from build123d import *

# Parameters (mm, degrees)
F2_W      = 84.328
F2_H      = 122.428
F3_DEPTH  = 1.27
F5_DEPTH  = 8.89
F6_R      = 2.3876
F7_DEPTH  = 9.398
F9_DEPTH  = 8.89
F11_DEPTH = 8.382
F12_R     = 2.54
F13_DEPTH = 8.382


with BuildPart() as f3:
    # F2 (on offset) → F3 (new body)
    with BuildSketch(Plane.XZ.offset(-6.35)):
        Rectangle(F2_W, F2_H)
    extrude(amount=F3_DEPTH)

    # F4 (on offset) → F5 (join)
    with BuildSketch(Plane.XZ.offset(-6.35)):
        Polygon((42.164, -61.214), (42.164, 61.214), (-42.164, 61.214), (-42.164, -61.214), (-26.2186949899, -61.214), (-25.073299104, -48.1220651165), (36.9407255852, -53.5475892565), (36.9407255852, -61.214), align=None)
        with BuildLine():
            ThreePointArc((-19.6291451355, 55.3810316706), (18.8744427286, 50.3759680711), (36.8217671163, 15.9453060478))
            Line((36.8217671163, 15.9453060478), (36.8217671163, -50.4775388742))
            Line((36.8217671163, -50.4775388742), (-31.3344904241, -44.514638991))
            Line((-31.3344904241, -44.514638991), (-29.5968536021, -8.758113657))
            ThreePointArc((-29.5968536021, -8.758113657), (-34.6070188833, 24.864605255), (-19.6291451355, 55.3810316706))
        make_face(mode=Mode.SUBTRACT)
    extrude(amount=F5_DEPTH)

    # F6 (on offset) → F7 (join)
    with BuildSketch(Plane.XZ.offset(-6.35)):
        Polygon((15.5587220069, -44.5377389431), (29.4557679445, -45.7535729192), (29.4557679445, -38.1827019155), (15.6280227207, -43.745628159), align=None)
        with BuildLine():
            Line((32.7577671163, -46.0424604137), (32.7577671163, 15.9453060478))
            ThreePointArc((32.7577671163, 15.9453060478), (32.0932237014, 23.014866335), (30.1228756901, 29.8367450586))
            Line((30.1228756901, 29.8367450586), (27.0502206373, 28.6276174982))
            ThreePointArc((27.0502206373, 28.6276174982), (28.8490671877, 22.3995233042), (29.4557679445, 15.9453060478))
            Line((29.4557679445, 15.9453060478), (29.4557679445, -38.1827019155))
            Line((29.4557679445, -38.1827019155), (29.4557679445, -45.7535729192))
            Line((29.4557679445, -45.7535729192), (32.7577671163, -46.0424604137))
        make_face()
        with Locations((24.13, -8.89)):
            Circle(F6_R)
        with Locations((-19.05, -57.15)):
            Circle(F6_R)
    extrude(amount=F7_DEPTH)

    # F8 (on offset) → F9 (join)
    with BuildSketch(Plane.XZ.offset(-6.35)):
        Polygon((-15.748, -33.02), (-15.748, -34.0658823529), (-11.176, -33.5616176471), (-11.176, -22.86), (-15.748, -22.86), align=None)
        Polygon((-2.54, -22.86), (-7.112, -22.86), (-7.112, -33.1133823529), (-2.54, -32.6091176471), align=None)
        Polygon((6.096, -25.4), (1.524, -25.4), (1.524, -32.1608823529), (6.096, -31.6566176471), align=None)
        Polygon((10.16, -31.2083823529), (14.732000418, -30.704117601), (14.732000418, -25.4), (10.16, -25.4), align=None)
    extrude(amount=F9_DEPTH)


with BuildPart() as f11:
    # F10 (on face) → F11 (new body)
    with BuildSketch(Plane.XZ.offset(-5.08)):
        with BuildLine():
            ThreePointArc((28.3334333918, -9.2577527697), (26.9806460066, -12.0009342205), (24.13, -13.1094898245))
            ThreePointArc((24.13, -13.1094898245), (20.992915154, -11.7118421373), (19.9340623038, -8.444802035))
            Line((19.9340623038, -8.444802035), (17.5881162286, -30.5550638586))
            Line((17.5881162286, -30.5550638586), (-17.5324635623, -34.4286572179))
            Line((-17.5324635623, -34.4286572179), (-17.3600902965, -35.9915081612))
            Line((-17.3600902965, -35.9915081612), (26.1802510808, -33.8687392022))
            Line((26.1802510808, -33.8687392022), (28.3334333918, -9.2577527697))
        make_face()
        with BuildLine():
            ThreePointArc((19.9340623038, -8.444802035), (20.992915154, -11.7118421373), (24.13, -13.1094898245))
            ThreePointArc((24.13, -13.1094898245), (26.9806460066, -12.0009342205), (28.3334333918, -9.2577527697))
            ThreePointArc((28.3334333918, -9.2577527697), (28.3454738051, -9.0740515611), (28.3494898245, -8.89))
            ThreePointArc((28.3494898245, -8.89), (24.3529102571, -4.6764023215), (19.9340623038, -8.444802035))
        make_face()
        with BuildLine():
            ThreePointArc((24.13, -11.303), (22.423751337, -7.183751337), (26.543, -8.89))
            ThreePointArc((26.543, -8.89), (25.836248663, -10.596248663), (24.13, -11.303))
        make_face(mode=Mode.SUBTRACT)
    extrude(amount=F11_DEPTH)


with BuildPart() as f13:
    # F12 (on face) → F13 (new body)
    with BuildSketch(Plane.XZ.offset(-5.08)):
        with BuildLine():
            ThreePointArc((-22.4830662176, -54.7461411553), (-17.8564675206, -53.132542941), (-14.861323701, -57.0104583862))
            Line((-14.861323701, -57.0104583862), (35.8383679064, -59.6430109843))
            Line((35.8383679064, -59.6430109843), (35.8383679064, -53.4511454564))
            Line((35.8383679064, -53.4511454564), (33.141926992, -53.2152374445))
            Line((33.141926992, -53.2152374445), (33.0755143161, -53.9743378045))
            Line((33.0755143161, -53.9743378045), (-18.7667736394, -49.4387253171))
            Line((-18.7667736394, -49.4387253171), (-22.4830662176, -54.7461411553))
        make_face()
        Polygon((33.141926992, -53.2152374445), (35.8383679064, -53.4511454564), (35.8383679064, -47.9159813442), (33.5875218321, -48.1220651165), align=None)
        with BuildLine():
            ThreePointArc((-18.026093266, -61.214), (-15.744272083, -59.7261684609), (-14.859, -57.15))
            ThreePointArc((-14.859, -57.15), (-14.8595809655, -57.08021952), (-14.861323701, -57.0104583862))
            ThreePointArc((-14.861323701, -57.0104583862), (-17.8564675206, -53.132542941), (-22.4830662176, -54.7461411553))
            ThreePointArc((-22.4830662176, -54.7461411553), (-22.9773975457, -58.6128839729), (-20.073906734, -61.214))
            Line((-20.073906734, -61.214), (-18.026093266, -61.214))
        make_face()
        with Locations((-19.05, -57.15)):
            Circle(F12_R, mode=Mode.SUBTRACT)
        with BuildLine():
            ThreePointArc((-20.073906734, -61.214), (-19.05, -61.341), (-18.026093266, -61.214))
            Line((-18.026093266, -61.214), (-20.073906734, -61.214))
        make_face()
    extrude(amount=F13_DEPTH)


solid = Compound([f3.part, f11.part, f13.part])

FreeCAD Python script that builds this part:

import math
import FreeCAD as App
import Part
import Sketcher
Q = App.Units.Quantity

doc = App.newDocument("Part")
body = doc.addObject("PartDesign::Body", "Body")

# Sketch on XZ plane
sketch1 = body.newObject("Sketcher::SketchObject", "Sketch")
sketch1.AttachmentSupport = (doc.getObject("XZ_Plane"), [""])
sketch1.MapMode = "FlatFace"
sketch1.AttachmentOffset = App.Placement(App.Vector(0, 0, -0.25 * 25.4), App.Rotation())
sketch1.addGeometry([
    Part.LineSegment(App.Vector(-42, 61, 0), App.Vector(-42, -61, 0)),
    Part.LineSegment(App.Vector(-42, -61, 0), App.Vector(42, -61, 0)),
    Part.LineSegment(App.Vector(42, -61, 0), App.Vector(42, 61, 0)),
    Part.LineSegment(App.Vector(42, 61, 0), App.Vector(-42, 61, 0)),
], False)
sketch1.addConstraint([
    Sketcher.Constraint("Coincident", 0, 2, 1, 1),
    Sketcher.Constraint("Coincident", 1, 2, 2, 1),
    Sketcher.Constraint("Coincident", 2, 2, 3, 1),
    Sketcher.Constraint("Coincident", 3, 2, 0, 1),
    Sketcher.Constraint("Vertical", 0),
    Sketcher.Constraint("Horizontal", 1),
    Sketcher.Constraint("Vertical", 2),
    Sketcher.Constraint("Horizontal", 3),
    Sketcher.Constraint("Symmetric", 0, 2, 2, 2, -1, 1),
    Sketcher.Constraint("DistanceX", 1, 1, 1, 2, Q("3.32 in")),
    Sketcher.Constraint("DistanceY", 0, 2, 0, 1, Q("4.82 in")),
])
pad1 = body.newObject("PartDesign::Pad", "Pad")
pad1.Profile = sketch1
pad1.Length = Q("0.05 in")

# Sketch on XZ plane
sketch2 = body.newObject("Sketcher::SketchObject", "Sketch001")
sketch2.AttachmentSupport = (doc.getObject("XZ_Plane"), [""])
sketch2.MapMode = "FlatFace"
sketch2.AttachmentOffset = App.Placement(App.Vector(0, 0, -0.25 * 25.4), App.Rotation())
sketch2.addGeometry([
    Part.LineSegment(App.Vector(42, -61, 0), App.Vector(42, 61, 0)),  # 0
    Part.LineSegment(App.Vector(42, 61, 0), App.Vector(-42, 61, 0)),  # 1
    Part.LineSegment(App.Vector(-42, 61, 0), App.Vector(-42, -61, 0)),  # 2
    Part.LineSegment(App.Vector(-42, -61, 0), App.Vector(-26, -61, 0)),  # 3
    Part.LineSegment(App.Vector(-26, -61, 0), App.Vector(-25, -48, 0)),  # 4
    Part.LineSegment(App.Vector(-25, -48, 0), App.Vector(37, -54, 0)),  # 5
    Part.LineSegment(App.Vector(37, -54, 0), App.Vector(37, -61, 0)),  # 6
    Part.LineSegment(App.Vector(37, -61, 0), App.Vector(42, -61, 0)),  # 7
    Part.ArcOfCircle(Part.Circle(App.Vector(22, 16, 0), App.Vector(0, 0, 1), 57), math.radians(137), math.radians(206)),  # 8
    Part.ArcOfCircle(Part.Circle(App.Vector(-5, 16, 0), App.Vector(0, 0, 1), 42), math.radians(0), math.radians(110)),  # 9
    Part.LineSegment(App.Vector(37, 16, 0), App.Vector(37, -50, 0)),  # 10
    Part.LineSegment(App.Vector(37, -50, 0), App.Vector(-31, -45, 0)),  # 11
    Part.LineSegment(App.Vector(-31, -45, 0), App.Vector(-30, -9, 0)),  # 12
], False)
sketch2.addConstraint([
    Sketcher.Constraint("Coincident", 0, 2, 1, 1),
    Sketcher.Constraint("Coincident", 1, 2, 2, 1),
    Sketcher.Constraint("Coincident", 2, 2, 3, 1),
    Sketcher.Constraint("Coincident", 3, 2, 4, 1),
    Sketcher.Constraint("Coincident", 4, 2, 5, 1),
    Sketcher.Constraint("Coincident", 5, 2, 6, 1),
    Sketcher.Constraint("Coincident", 6, 2, 7, 1),
    Sketcher.Constraint("Coincident", 7, 2, 0, 1),
    Sketcher.Constraint("Coincident", 8, 1, 9, 2),
    Sketcher.Constraint("Tangent", 9, 1, 10, 1),
    Sketcher.Constraint("Coincident", 10, 2, 11, 1),
    Sketcher.Constraint("Coincident", 11, 2, 12, 1),
    Sketcher.Constraint("Coincident", 12, 2, 8, 2),
    Sketcher.Constraint("Vertical", 0),
    Sketcher.Constraint("Horizontal", 1),
    Sketcher.Constraint("Vertical", 2),
    Sketcher.Constraint("Horizontal", 3),
    Sketcher.Constraint("Vertical", 6),
    Sketcher.Constraint("Horizontal", 7),
    Sketcher.Constraint("Vertical", 10),
    Sketcher.Constraint("Symmetric", 0, 2, 2, 2, -1, 1),
    Sketcher.Constraint("Perpendicular", 4, 5),
    Sketcher.Constraint("Parallel", 5, 11),
    Sketcher.Constraint("Horizontal", 3, 2, 6, 2),
    Sketcher.Constraint("Angle", 4, Q("85 deg")),
    Sketcher.Constraint("DistanceX", 1, 2, 1, 1, Q("3.32 in")),
    Sketcher.Constraint("DistanceY", 0, 1, 0, 2, Q("4.82 in")),
    Sketcher.Constraint("Radius", 8, Q("57.128273 mm")),
    Sketcher.Constraint("Radius", 9, Q("42.000047 mm")),
    Sketcher.Constraint("DistanceY", 6, 2, 6, 1, Q("7.666411 mm")),
    Sketcher.Constraint("DistanceX", 4, 2, -1, 1, Q("25.073299 mm")),
    Sketcher.Constraint("DistanceY", 10, 2, 11, 2, Q("5.9629 mm")),
    Sketcher.Constraint("Distance", 5, Q("62.250908 mm")),
    Sketcher.Constraint("Distance", 12, Q("35.798722 mm")),
    Sketcher.Constraint("DistanceY", 10, 2, 10, 1, Q("66.422845 mm")),
    Sketcher.Constraint("DistanceX", 9, 3, -1, 1, Q("5.17828 mm")),
    Sketcher.Constraint("DistanceY", -1, 1, 8, 1, Q("55.381032 mm")),
    Sketcher.Constraint("DistanceY", 10, 2, -1, 1, Q("50.477539 mm")),
    Sketcher.Constraint("DistanceY", 9, 3, 8, 3, Q("0.14644 mm")),
])
pad2 = body.newObject("PartDesign::Pad", "Pad001")
pad2.Profile = sketch2
pad2.Length = Q("0.35 in")

# Sketch on XZ plane
sketch3 = body.newObject("Sketcher::SketchObject", "Sketch002")
sketch3.AttachmentSupport = (doc.getObject("XZ_Plane"), [""])
sketch3.MapMode = "FlatFace"
sketch3.AttachmentOffset = App.Placement(App.Vector(0, 0, -0.25 * 25.4), App.Rotation())
sketch3.addGeometry([
    Part.LineSegment(App.Vector(15.6, -44.5, 0), App.Vector(29.5, -45.8, 0)),  # 0
    Part.LineSegment(App.Vector(29.5, -45.8, 0), App.Vector(32.8, -46, 0)),  # 1
    Part.LineSegment(App.Vector(32.8, -46, 0), App.Vector(32.8, 15.9, 0)),  # 2
    Part.ArcOfCircle(Part.Circle(App.Vector(-5.2, 15.9, 0), App.Vector(0, 0, 1), 37.9), math.radians(0), math.radians(21)),  # 3
    Part.LineSegment(App.Vector(30.1, 29.8, 0), App.Vector(27.1, 28.6, 0)),  # 4
    Part.ArcOfCircle(Part.Circle(App.Vector(-5.2, 15.9, 0), App.Vector(0, 0, 1), 34.6), math.radians(0), math.radians(21)),  # 5
    Part.LineSegment(App.Vector(29.5, 15.9, 0), App.Vector(29.5, -38.2, 0)),  # 6
    Part.LineSegment(App.Vector(29.5, -38.2, 0), App.Vector(15.6, -43.7, 0)),  # 7
    Part.LineSegment(App.Vector(15.6, -43.7, 0), App.Vector(15.6, -44.5, 0)),  # 8
    Part.Circle(App.Vector(24.1, -8.9, 0), App.Vector(0, 0, 1), 2.4),  # 9
    Part.Circle(App.Vector(-19.1, -57.1, 0), App.Vector(0, 0, 1), 2.4),  # 10
], False)
sketch3.addConstraint([
    Sketcher.Constraint("Coincident", 0, 2, 1, 1),
    Sketcher.Constraint("Coincident", 1, 2, 2, 1),
    Sketcher.Constraint("Tangent", 2, 2, 3, 1),
    Sketcher.Constraint("Coincident", 3, 2, 4, 1),
    Sketcher.Constraint("Coincident", 4, 2, 5, 2),
    Sketcher.Constraint("Tangent", 5, 1, 6, 1),
    Sketcher.Constraint("Coincident", 6, 2, 7, 1),
    Sketcher.Constraint("Coincident", 7, 2, 8, 1),
    Sketcher.Constraint("Coincident", 8, 2, 0, 1),
    Sketcher.Constraint("Vertical", 2),
    Sketcher.Constraint("Vertical", 6),
    Sketcher.Constraint("Coincident", 5, 3, 3, 3),
    Sketcher.Constraint("Equal", 9, 10),
    Sketcher.Constraint("Parallel", 0, 1),
    Sketcher.Constraint("Perpendicular", 1, 8),
    Sketcher.Constraint("Vertical", 0, 2, 5, 1),
    Sketcher.Constraint("Diameter", 9, Q("0.188 in")),
    Sketcher.Constraint("Angle", 0, Q("-5 deg")),
    Sketcher.Constraint("DistanceX", 10, 3, 9, 3, Q("1.7 in")),
    Sketcher.Constraint("DistanceY", 10, 3, 9, 3, Q("1.9 in")),
    Sketcher.Constraint("Distance", 4, Q("0.13 in")),
    Sketcher.Constraint("DistanceX", -1, 1, 9, 3, Q("0.95 in")),
    Sketcher.Constraint("DistanceY", 9, 3, -1, 1, Q("0.35 in")),
    Sketcher.Constraint("Radius", 3, Q("37.936047 mm")),
    Sketcher.Constraint("DistanceY", 6, 2, -1, 1, Q("38.182702 mm")),
    Sketcher.Constraint("DistanceX", 3, 3, 4, 2, Q("32.228501 mm")),
    Sketcher.Constraint("DistanceX", 8, 2, 7, 2, Q("0.069301 mm")),
    Sketcher.Constraint("Distance", 0, Q("13.95013 mm")),
    Sketcher.Constraint("DistanceY", 2, 1, 2, 2, Q("61.987766 mm")),
    Sketcher.Constraint("DistanceY", 6, 2, 6, 1, Q("54.128008 mm")),
    Sketcher.Constraint("DistanceX", 3, 3, -1, 1, Q("5.17828 mm")),
    Sketcher.Constraint("DistanceX", 3, 2, 2, 2, Q("2.634891 mm")),
])
pad3 = body.newObject("PartDesign::Pad", "Pad002")
pad3.Profile = sketch3
pad3.Length = Q("0.37 in")

# Sketch on XZ plane
sketch4 = body.newObject("Sketcher::SketchObject", "Sketch003")
sketch4.AttachmentSupport = (doc.getObject("XZ_Plane"), [""])
sketch4.MapMode = "FlatFace"
sketch4.AttachmentOffset = App.Placement(App.Vector(0, 0, -0.25 * 25.4), App.Rotation())
sketch4.addGeometry([
    Part.LineSegment(App.Vector(-15.7, -34.1, 0), App.Vector(-11.2, -33.6, 0)),  # 0
    Part.LineSegment(App.Vector(-11.2, -33.6, 0), App.Vector(-11.2, -22.9, 0)),  # 1
    Part.LineSegment(App.Vector(-11.2, -22.9, 0), App.Vector(-15.7, -22.9, 0)),  # 2
    Part.LineSegment(App.Vector(-15.7, -22.9, 0), App.Vector(-15.7, -34.1, 0)),  # 3
    Part.LineSegment(App.Vector(-2.5, -22.9, 0), App.Vector(-7.1, -22.9, 0)),  # 4
    Part.LineSegment(App.Vector(-7.1, -22.9, 0), App.Vector(-7.1, -33.1, 0)),  # 5
    Part.LineSegment(App.Vector(-7.1, -33.1, 0), App.Vector(-2.5, -32.6, 0)),  # 6
    Part.LineSegment(App.Vector(-2.5, -32.6, 0), App.Vector(-2.5, -22.9, 0)),  # 7
    Part.LineSegment(App.Vector(6.1, -25.4, 0), App.Vector(1.5, -25.4, 0)),  # 8
    Part.LineSegment(App.Vector(1.5, -25.4, 0), App.Vector(1.5, -32.2, 0)),  # 9
    Part.LineSegment(App.Vector(1.5, -32.2, 0), App.Vector(6.1, -31.7, 0)),  # 10
    Part.LineSegment(App.Vector(6.1, -31.7, 0), App.Vector(6.1, -25.4, 0)),  # 11
    Part.LineSegment(App.Vector(10.2, -31.2, 0), App.Vector(14.7, -30.7, 0)),  # 12
    Part.LineSegment(App.Vector(14.7, -30.7, 0), App.Vector(14.7, -25.4, 0)),  # 13
    Part.LineSegment(App.Vector(14.7, -25.4, 0), App.Vector(10.2, -25.4, 0)),  # 14
    Part.LineSegment(App.Vector(10.2, -25.4, 0), App.Vector(10.2, -31.2, 0)),  # 15
], False)
sketch4.addConstraint([
    Sketcher.Constraint("Coincident", 0, 2, 1, 1),
    Sketcher.Constraint("Coincident", 1, 2, 2, 1),
    Sketcher.Constraint("Coincident", 2, 2, 3, 1),
    Sketcher.Constraint("Coincident", 3, 2, 0, 1),
    Sketcher.Constraint("Coincident", 4, 2, 5, 1),
    Sketcher.Constraint("Coincident", 5, 2, 6, 1),
    Sketcher.Constraint("Coincident", 6, 2, 7, 1),
    Sketcher.Constraint("Coincident", 7, 2, 4, 1),
    Sketcher.Constraint("Coincident", 8, 2, 9, 1),
    Sketcher.Constraint("Coincident", 9, 2, 10, 1),
    Sketcher.Constraint("Coincident", 10, 2, 11, 1),
    Sketcher.Constraint("Coincident", 11, 2, 8, 1),
    Sketcher.Constraint("Coincident", 12, 2, 13, 1),
    Sketcher.Constraint("Coincident", 13, 2, 14, 1),
    Sketcher.Constraint("Coincident", 14, 2, 15, 1),
    Sketcher.Constraint("Coincident", 15, 2, 12, 1),
    Sketcher.Constraint("Vertical", 1),
    Sketcher.Constraint("Horizontal", 2),
    Sketcher.Constraint("Vertical", 3),
    Sketcher.Constraint("Horizontal", 4),
    Sketcher.Constraint("Vertical", 5),
    Sketcher.Constraint("Vertical", 7),
    Sketcher.Constraint("Horizontal", 8),
    Sketcher.Constraint("Vertical", 9),
    Sketcher.Constraint("Vertical", 11),
    Sketcher.Constraint("Vertical", 13),
    Sketcher.Constraint("Horizontal", 14),
    Sketcher.Constraint("Vertical", 15),
    Sketcher.Constraint("Parallel", 0, 6),
    Sketcher.Constraint("Parallel", 6, 10),
    Sketcher.Constraint("Parallel", 10, 12),
    Sketcher.Constraint("Horizontal", 2, 2, 4, 2),
    Sketcher.Constraint("Horizontal", 11, 2, 13, 2),
    Sketcher.Constraint("Equal", 2, 4),
    Sketcher.Constraint("Equal", 4, 8),
    Sketcher.Constraint("Equal", 8, 14),
    Sketcher.Constraint("DistanceY", 8, 2, -1, 1, Q("1 in")),
    Sketcher.Constraint("DistanceX", 2, 2, 2, 1, Q("0.18 in")),
    Sketcher.Constraint("DistanceY", 1, 2, -1, 1, Q("0.9 in")),
    Sketcher.Constraint("DistanceX", 6, 2, -1, 1, Q("0.1 in")),
    Sketcher.Constraint("DistanceX", -1, 1, 14, 2, Q("0.4 in")),
    Sketcher.Constraint("DistanceX", 1, 2, 8, 2, Q("0.5 in")),
    Sketcher.Constraint("DistanceX", 0, 2, -1, 1, Q("0.44 in")),
    Sketcher.Constraint("DistanceY", 6, 2, 12, 2, Q("0.075 in")),
    Sketcher.Constraint("DistanceY", 3, 2, 5, 2, Q("0.0375 in")),
    Sketcher.Constraint("DistanceY", 5, 2, 9, 2, Q("0.0375 in")),
    Sketcher.Constraint("DistanceY", 1, 1, 1, 2, Q("10.701618 mm")),
    Sketcher.Constraint("DistanceY", 3, 2, 3, 1, Q("11.205882 mm")),
])
pad4 = body.newObject("PartDesign::Pad", "Pad003")
pad4.Profile = sketch4
pad4.Length = Q("0.35 in")
body2 = doc.addObject("PartDesign::Body", "Body001")

# Sketch on XZ plane
sketch5 = body2.newObject("Sketcher::SketchObject", "Sketch004")
sketch5.AttachmentSupport = (doc.getObject("XZ_Plane001"), [""])
sketch5.MapMode = "FlatFace"
sketch5.AttachmentOffset = App.Placement(App.Vector(0, 0, -0.2 * 25.4), App.Rotation())
sketch5.addGeometry([
    Part.LineSegment(App.Vector(19.93, -8.44, 0), App.Vector(17.59, -30.56, 0)),  # 0
    Part.LineSegment(App.Vector(17.59, -30.56, 0), App.Vector(-17.53, -34.43, 0)),  # 1
    Part.LineSegment(App.Vector(-17.53, -34.43, 0), App.Vector(-17.36, -35.99, 0)),  # 2
    Part.LineSegment(App.Vector(-17.36, -35.99, 0), App.Vector(26.18, -33.87, 0)),  # 3
    Part.LineSegment(App.Vector(26.18, -33.87, 0), App.Vector(28.33, -9.26, 0)),  # 4
    Part.ArcOfCircle(Part.Circle(App.Vector(24.13, -8.89, 0), App.Vector(0, 0, 1), 4.22), math.radians(-5), math.radians(0)),  # 5
    Part.ArcOfCircle(Part.Circle(App.Vector(24.13, -8.89, 0), App.Vector(0, 0, 1), 4.22), math.radians(0), math.radians(174)),  # 6
    Part.ArcOfCircle(Part.Circle(App.Vector(24.13, -8.89, 0), App.Vector(0, 0, 1), 2.41), math.radians(-90), math.radians(0)),  # 7
    Part.ArcOfCircle(Part.Circle(App.Vector(24.13, -8.89, 0), App.Vector(0, 0, 1), 2.41), math.radians(0), math.radians(270)),  # 8
], False)
sketch5.addConstraint([
    Sketcher.Constraint("Coincident", 0, 2, 1, 1),
    Sketcher.Constraint("Coincident", 1, 2, 2, 1),
    Sketcher.Constraint("Coincident", 2, 2, 3, 1),
    Sketcher.Constraint("Coincident", 3, 2, 4, 1),
    Sketcher.Constraint("Tangent", 4, 2, 5, 1),
    Sketcher.Constraint("Tangent", 5, 2, 6, 1),
    Sketcher.Constraint("Tangent", 6, 2, 0, 1),
    Sketcher.Constraint("Tangent", 7, 1, 8, 2),
    Sketcher.Constraint("Coincident", 8, 1, 7, 2),
    Sketcher.Constraint("Coincident", 7, 3, 5, 3),
    Sketcher.Constraint("Equal", 5, 6),
    Sketcher.Constraint("Perpendicular", 1, 2),
    Sketcher.Constraint("Horizontal", 8, 3, 5, 2),
    Sketcher.Constraint("Horizontal", 5, 2, 8, 1),
    Sketcher.Constraint("Vertical", 8, 3, 7, 1),
    Sketcher.Constraint("Angle", 4, Q("85 deg")),
    Sketcher.Constraint("Radius", 7, Q("0.095 in")),
    Sketcher.Constraint("DistanceX", -1, 1, 5, 3, Q("0.95 in")),
    Sketcher.Constraint("DistanceY", 5, 3, -1, 1, Q("0.35 in")),
    Sketcher.Constraint("Radius", 5, Q("4.21949 mm")),
    Sketcher.Constraint("DistanceX", 1, 2, 0, 2, Q("1.3827 in")),
    Sketcher.Constraint("Distance", 0, Q("22.234368 mm")),
    Sketcher.Constraint("Distance", 1, Q("35.333551 mm")),
    Sketcher.Constraint("Distance", 2, Q("1.572328 mm")),
    Sketcher.Constraint("DistanceX", 2, 2, -1, 1, Q("17.36009 mm")),
    Sketcher.Constraint("DistanceX", -1, 1, 3, 2, Q("26.180251 mm")),
])
pad5 = body2.newObject("PartDesign::Pad", "Pad004")
pad5.Profile = sketch5
pad5.Length = Q("0.33 in")
body3 = doc.addObject("PartDesign::Body", "Body002")

# Sketch on XZ plane
sketch6 = body3.newObject("Sketcher::SketchObject", "Sketch005")
sketch6.AttachmentSupport = (doc.getObject("XZ_Plane002"), [""])
sketch6.MapMode = "FlatFace"
sketch6.AttachmentOffset = App.Placement(App.Vector(0, 0, -0.2 * 25.4), App.Rotation())
sketch6.addGeometry([
    Part.LineSegment(App.Vector(-14.86, -57.01, 0), App.Vector(35.84, -59.64, 0)),  # 0
    Part.LineSegment(App.Vector(35.84, -59.64, 0), App.Vector(35.84, -47.92, 0)),  # 1
    Part.LineSegment(App.Vector(35.84, -47.92, 0), App.Vector(33.59, -48.12, 0)),  # 2
    Part.LineSegment(App.Vector(33.59, -48.12, 0), App.Vector(33.14, -53.22, 0)),  # 3
    Part.LineSegment(App.Vector(33.14, -53.22, 0), App.Vector(33.08, -53.97, 0)),  # 4
    Part.LineSegment(App.Vector(33.08, -53.97, 0), App.Vector(-18.77, -49.44, 0)),  # 5
    Part.LineSegment(App.Vector(-18.77, -49.44, 0), App.Vector(-22.48, -54.75, 0)),  # 6
    Part.ArcOfCircle(Part.Circle(App.Vector(-19.05, -57.15, 0), App.Vector(0, 0, 1), 4.19), math.radians(145), math.radians(256)),  # 7
    Part.ArcOfCircle(Part.Circle(App.Vector(-19.05, -57.15, 0), App.Vector(0, 0, 1), 4.19), math.radians(-104), math.radians(-76)),  # 8
    Part.ArcOfCircle(Part.Circle(App.Vector(-19.05, -57.15, 0), App.Vector(0, 0, 1), 4.19), math.radians(-76), math.radians(0)),  # 9
    Part.ArcOfCircle(Part.Circle(App.Vector(-19.05, -57.15, 0), App.Vector(0, 0, 1), 4.19), math.radians(0), math.radians(1.91)),  # 10
    Part.Circle(App.Vector(-19.05, -57.15, 0), App.Vector(0, 0, 1), 2.54),  # 11
], False)
sketch6.addConstraint([
    Sketcher.Constraint("Coincident", 0, 2, 1, 1),
    Sketcher.Constraint("Coincident", 1, 2, 2, 1),
    Sketcher.Constraint("Coincident", 2, 2, 3, 1),
    Sketcher.Constraint("Coincident", 3, 2, 4, 1),
    Sketcher.Constraint("Coincident", 4, 2, 5, 1),
    Sketcher.Constraint("Coincident", 5, 2, 6, 1),
    Sketcher.Constraint("Tangent", 6, 2, 7, 1),
    Sketcher.Constraint("Tangent", 7, 2, 8, 1),
    Sketcher.Constraint("Tangent", 8, 2, 9, 1),
    Sketcher.Constraint("Tangent", 9, 2, 10, 1),
    Sketcher.Constraint("Coincident", 10, 2, 0, 1),
    Sketcher.Constraint("Vertical", 1),
    Sketcher.Constraint("Coincident", 9, 3, 7, 3),
    Sketcher.Constraint("Coincident", 11, 3, 7, 3),
    Sketcher.Constraint("Equal", 9, 10),
    Sketcher.Constraint("Parallel", 3, 4),
    Sketcher.Constraint("Perpendicular", 4, 5),
    Sketcher.Constraint("Horizontal", 7, 2, 8, 2),
    Sketcher.Constraint("Horizontal", 11, 3, 9, 2),
    Sketcher.Constraint("Diameter", 11, Q("0.2 in")),
    Sketcher.Constraint("Angle", 3, Q("-95 deg")),
    Sketcher.Constraint("Angle", 6, Q("-125 deg")),
    Sketcher.Constraint("Radius", 7, Q("0.165 in")),
    Sketcher.Constraint("Distance", 4, Q("0.03 in")),
    Sketcher.Constraint("DistanceX", 7, 3, -1, 1, Q("0.75 in")),
    Sketcher.Constraint("DistanceY", 7, 3, -1, 1, Q("2.25 in")),
    Sketcher.Constraint("DistanceY", 7, 2, -1, 1, Q("2.41 in")),
    Sketcher.Constraint("DistanceY", 1, 1, 1, 2, Q("11.72703 mm")),
    Sketcher.Constraint("Distance", 2, Q("2.260261 mm")),
    Sketcher.Constraint("Distance", 6, Q("6.479158 mm")),
    Sketcher.Constraint("DistanceY", 0, 2, -1, 1, Q("59.643011 mm")),
    Sketcher.Constraint("DistanceX", -1, 1, 2, 2, Q("33.587522 mm")),
    Sketcher.Constraint("DistanceY", 10, 2, -1, 1, Q("57.010458 mm")),
    Sketcher.Constraint("DistanceX", 3, 2, 1, 2, Q("2.696441 mm")),
])
pad6 = body3.newObject("PartDesign::Pad", "Pad005")
pad6.Profile = sketch6
pad6.Length = Q("0.33 in")

doc.recompute()
